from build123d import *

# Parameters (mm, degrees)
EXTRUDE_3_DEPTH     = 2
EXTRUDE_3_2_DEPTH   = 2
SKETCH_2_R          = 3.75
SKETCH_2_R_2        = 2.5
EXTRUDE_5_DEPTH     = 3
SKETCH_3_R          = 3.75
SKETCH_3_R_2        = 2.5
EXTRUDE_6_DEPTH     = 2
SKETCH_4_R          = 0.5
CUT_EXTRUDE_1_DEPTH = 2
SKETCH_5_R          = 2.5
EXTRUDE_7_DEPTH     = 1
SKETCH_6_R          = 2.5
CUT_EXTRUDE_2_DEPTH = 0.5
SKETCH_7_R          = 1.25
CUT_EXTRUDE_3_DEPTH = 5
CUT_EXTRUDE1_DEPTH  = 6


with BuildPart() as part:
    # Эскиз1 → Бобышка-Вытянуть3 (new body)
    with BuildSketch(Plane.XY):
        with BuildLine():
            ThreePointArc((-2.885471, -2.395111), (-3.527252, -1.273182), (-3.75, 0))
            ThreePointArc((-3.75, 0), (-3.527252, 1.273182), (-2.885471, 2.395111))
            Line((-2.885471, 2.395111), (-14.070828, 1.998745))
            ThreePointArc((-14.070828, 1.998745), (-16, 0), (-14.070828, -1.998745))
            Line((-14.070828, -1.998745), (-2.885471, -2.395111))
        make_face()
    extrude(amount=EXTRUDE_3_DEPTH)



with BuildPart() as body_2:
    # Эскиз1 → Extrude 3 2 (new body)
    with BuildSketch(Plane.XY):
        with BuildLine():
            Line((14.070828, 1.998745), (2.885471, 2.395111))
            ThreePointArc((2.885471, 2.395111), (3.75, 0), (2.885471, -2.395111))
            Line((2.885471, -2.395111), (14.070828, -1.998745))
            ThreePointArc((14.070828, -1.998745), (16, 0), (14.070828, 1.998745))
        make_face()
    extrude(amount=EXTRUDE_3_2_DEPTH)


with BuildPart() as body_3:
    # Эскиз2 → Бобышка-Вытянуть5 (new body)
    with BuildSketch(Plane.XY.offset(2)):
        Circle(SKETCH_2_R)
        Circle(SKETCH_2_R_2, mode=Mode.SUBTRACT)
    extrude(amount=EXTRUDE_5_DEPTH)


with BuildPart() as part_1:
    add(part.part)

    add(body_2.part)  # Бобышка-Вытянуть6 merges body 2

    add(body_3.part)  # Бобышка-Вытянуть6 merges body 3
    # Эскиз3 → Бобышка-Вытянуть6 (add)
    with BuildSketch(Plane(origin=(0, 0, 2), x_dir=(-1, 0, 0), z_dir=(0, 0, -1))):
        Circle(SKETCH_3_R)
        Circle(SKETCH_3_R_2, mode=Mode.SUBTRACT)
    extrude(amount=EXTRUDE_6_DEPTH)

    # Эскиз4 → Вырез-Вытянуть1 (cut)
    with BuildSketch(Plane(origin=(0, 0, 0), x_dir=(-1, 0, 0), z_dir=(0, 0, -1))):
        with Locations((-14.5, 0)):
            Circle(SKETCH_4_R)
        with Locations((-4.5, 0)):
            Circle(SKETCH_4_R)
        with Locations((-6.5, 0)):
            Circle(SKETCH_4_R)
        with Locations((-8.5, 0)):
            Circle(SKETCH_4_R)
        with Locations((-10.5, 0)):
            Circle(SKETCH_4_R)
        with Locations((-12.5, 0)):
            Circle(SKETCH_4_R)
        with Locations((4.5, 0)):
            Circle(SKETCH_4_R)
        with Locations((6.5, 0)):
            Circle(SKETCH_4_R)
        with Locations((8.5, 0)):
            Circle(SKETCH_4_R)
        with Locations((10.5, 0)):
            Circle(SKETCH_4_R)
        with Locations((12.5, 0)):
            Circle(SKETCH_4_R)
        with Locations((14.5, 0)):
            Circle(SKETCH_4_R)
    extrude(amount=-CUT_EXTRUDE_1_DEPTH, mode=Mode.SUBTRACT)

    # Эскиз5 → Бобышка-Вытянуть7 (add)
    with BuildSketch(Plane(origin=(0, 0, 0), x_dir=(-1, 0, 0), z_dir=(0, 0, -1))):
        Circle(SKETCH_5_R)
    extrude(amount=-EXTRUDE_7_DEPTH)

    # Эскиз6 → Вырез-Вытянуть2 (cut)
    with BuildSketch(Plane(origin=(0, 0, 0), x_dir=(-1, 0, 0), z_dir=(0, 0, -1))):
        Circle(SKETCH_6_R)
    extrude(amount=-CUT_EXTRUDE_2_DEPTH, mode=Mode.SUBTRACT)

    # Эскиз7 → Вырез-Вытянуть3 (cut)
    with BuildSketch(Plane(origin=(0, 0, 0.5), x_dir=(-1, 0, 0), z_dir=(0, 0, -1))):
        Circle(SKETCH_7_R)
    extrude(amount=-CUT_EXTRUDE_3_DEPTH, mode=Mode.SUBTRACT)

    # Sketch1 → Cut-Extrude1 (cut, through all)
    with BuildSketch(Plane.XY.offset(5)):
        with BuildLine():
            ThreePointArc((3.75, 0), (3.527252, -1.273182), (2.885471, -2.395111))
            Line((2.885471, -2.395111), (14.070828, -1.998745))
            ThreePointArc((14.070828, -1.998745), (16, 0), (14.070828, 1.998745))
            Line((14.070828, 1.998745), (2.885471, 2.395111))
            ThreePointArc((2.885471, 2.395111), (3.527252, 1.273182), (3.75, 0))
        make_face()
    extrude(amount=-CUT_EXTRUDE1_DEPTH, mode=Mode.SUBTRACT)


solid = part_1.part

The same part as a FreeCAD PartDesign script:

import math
import FreeCAD as App
import Part
import Sketcher
from FreeCAD import Vector

doc = App.newDocument("Part")
params = doc.addObject("Spreadsheet::Sheet", "Params")
for row, (alias, value) in enumerate([
    ("sketch1_radius", "2 mm"),
    ("sketch1_radius2", "3.750001 mm"),
    ("pad1_length", "2 mm"),
    ("sketch2_radius", "2 mm"),
    ("sketch2_radius2", "3.75 mm"),
    ("pad2_length", "2 mm"),
    ("sketch3_diameter", "5 mm"),
    ("sketch3_diameter2", "7.5 mm"),
    ("pad3_length", "3 mm"),
    ("sketch4_diameter", "5 mm"),
    ("sketch4_diameter2", "7.5 mm"),
    ("pad4_length", "2 mm"),
    ("sketch5_diameter", "1 mm"),
    ("pocket1_length", "2 mm"),
    ("sketch6_diameter", "5 mm"),
    ("pad5_length", "1 mm"),
    ("sketch7_diameter", "5 mm"),
    ("pocket2_length", "0.5 mm"),
    ("sketch8_diameter", "2.5 mm"),
    ("pocket3_length", "5 mm"),
    ("sketch9_radius", "2 mm"),
    ("sketch9_radius2", "3.750001 mm"),
], start=1):
    params.set(f"A{row}", alias)
    params.set(f"B{row}", "=" + value)
    params.setAlias(f"B{row}", alias)

body = doc.addObject("PartDesign::Body", "Body")

sketch1 = body.newObject("Sketcher::SketchObject", "Sketch")
sketch1.AttachmentSupport = (doc.getObject("XY_Plane"), [""])
sketch1.MapMode = "FlatFace"
sketch1.addGeometry(Part.ArcOfCircle(Part.Circle(Vector(0, 0, 0), Vector(0, 0, 1), 3.8), math.radians(-180), math.radians(-140)), False)
sketch1.addGeometry(Part.ArcOfCircle(Part.Circle(Vector(0, 0, 0), Vector(0, 0, 1), 3.8), math.radians(140), math.radians(180)), False)
sketch1.addGeometry(Part.LineSegment(Vector(-2.9, 2.4, 0), Vector(-14.1, 2, 0)), False)
sketch1.addGeometry(Part.ArcOfCircle(Part.Circle(Vector(-14, 0, 0), Vector(0, 0, 1), 2), math.radians(92), math.radians(268)), False)
sketch1.addGeometry(Part.LineSegment(Vector(-14.1, -2, 0), Vector(-2.9, -2.4, 0)), False)
sketch1.addConstraint(Sketcher.Constraint("Tangent", 0, 1, 1, 2))
sketch1.addConstraint(Sketcher.Constraint("Coincident", 1, 1, 2, 1))
sketch1.addConstraint(Sketcher.Constraint("Tangent", 2, 2, 3, 1))
sketch1.addConstraint(Sketcher.Constraint("Tangent", 3, 2, 4, 1))
sketch1.addConstraint(Sketcher.Constraint("Coincident", 4, 2, 0, 2))
sketch1.addConstraint(Sketcher.Constraint("Coincident", 0, 3, -1, 1))
sketch1.addConstraint(Sketcher.Constraint("Equal", 0, 1))
sketch1.addConstraint(Sketcher.Constraint("Symmetric", 2, 2, 3, 2, -1))
sketch1.addConstraint(Sketcher.Constraint("PointOnObject", 0, 1, -1))
sketch1.addConstraint(Sketcher.Constraint("Radius", 3, 2.0))
sketch1.addConstraint(Sketcher.Constraint("Radius", 0, 3.750001))
sketch1.addConstraint(Sketcher.Constraint("DistanceX", 3, 3, -1, 1, 14.0))
sketch1.addConstraint(Sketcher.Constraint("DistanceX", 1, 1, -1, 1, 2.885471))
sketch1.setExpression("Constraints[9]", "Params.sketch1_radius")
sketch1.setExpression("Constraints[10]", "Params.sketch1_radius2")
pad1 = body.newObject("PartDesign::Pad", "Pad")
pad1.Profile = sketch1
pad1.setExpression("Length", "Params.pad1_length")
body2 = doc.addObject("PartDesign::Body", "Body001")

sketch2 = body2.newObject("Sketcher::SketchObject", "Sketch001")
sketch2.AttachmentSupport = (doc.getObject("XY_Plane001"), [""])
sketch2.MapMode = "FlatFace"
sketch2.addGeometry(Part.LineSegment(Vector(14.1, 2, 0), Vector(2.9, 2.4, 0)), False)
sketch2.addGeometry(Part.ArcOfCircle(Part.Circle(Vector(0, 0, 0), Vector(0, 0, 1), 3.7), math.radians(-40), math.radians(40)), False)
sketch2.addGeometry(Part.LineSegment(Vector(2.9, -2.4, 0), Vector(14.1, -2, 0)), False)
sketch2.addGeometry(Part.ArcOfCircle(Part.Circle(Vector(14, 0, 0), Vector(0, 0, 1), 2), math.radians(-88), math.radians(88)), False)
sketch2.addConstraint(Sketcher.Constraint("Coincident", 0, 2, 1, 2))
sketch2.addConstraint(Sketcher.Constraint("Coincident", 1, 1, 2, 1))
sketch2.addConstraint(Sketcher.Constraint("Tangent", 2, 2, 3, 1))
sketch2.addConstraint(Sketcher.Constraint("Tangent", 3, 2, 0, 1))
sketch2.addConstraint(Sketcher.Constraint("Coincident", 1, 3, -1, 1))
sketch2.addConstraint(Sketcher.Constraint("Symmetric", 2, 2, 3, 2, -1))
sketch2.addConstraint(Sketcher.Constraint("Radius", 3, 2.0))
sketch2.addConstraint(Sketcher.Constraint("Radius", 1, 3.75))
sketch2.addConstraint(Sketcher.Constraint("DistanceX", -1, 1, 3, 3, 14.0))
sketch2.addConstraint(Sketcher.Constraint("DistanceX", -1, 1, 0, 2, 2.885471))
sketch2.setExpression("Constraints[6]", "Params.sketch2_radius")
sketch2.setExpression("Constraints[7]", "Params.sketch2_radius2")
pad2 = body2.newObject("PartDesign::Pad", "Pad001")
pad2.Profile = sketch2
pad2.setExpression("Length", "Params.pad2_length")
body3 = doc.addObject("PartDesign::Body", "Body002")

sketch3 = body3.newObject("Sketcher::SketchObject", "Sketch002")
sketch3.AttachmentSupport = (doc.getObject("XY_Plane002"), [""])
sketch3.MapMode = "FlatFace"
sketch3.AttachmentOffset = App.Placement(Vector(0, 0, 2), App.Rotation())
sketch3.addGeometry(Part.Circle(Vector(0, 0, 0), Vector(0, 0, 1), 3.8), False)
sketch3.addGeometry(Part.Circle(Vector(0, 0, 0), Vector(0, 0, 1), 2.5), False)
sketch3.addConstraint(Sketcher.Constraint("Coincident", 0, 3, -1, 1))
sketch3.addConstraint(Sketcher.Constraint("Coincident", 1, 3, -1, 1))
sketch3.addConstraint(Sketcher.Constraint("Diameter", 1, 5.0))
sketch3.addConstraint(Sketcher.Constraint("Diameter", 0, 7.5))
sketch3.setExpression("Constraints[2]", "Params.sketch3_diameter")
sketch3.setExpression("Constraints[3]", "Params.sketch3_diameter2")
pad3 = body3.newObject("PartDesign::Pad", "Pad002")
pad3.Profile = sketch3
pad3.setExpression("Length", "Params.pad3_length")
body.AllowCompound = True
doc.recompute()

boolean = body.newObject("PartDesign::Boolean", "Boolean")
boolean.Type = "Fuse"
boolean.addObjects([body2])
doc.recompute()

boolean2 = body.newObject("PartDesign::Boolean", "Boolean001")
boolean2.Type = "Fuse"
boolean2.addObjects([body3])

sketch4 = body.newObject("Sketcher::SketchObject", "Sketch003")
sketch4.AttachmentSupport = (doc.getObject("XY_Plane"), [""])
sketch4.MapMode = "FlatFace"
sketch4.AttachmentOffset = App.Placement(Vector(0, 0, 2), App.Rotation())
sketch4.addGeometry(Part.Circle(Vector(0, 0, 0), Vector(0, 0, 1), 3.8), False)
sketch4.addGeometry(Part.Circle(Vector(0, 0, 0), Vector(0, 0, 1), 2.5), False)
sketch4.addConstraint(Sketcher.Constraint("Coincident", 0, 3, -1, 1))
sketch4.addConstraint(Sketcher.Constraint("Coincident", 1, 3, -1, 1))
sketch4.addConstraint(Sketcher.Constraint("Diameter", 1, 5.0))
sketch4.addConstraint(Sketcher.Constraint("Diameter", 0, 7.5))
sketch4.setExpression("Constraints[2]", "Params.sketch4_diameter")
sketch4.setExpression("Constraints[3]", "Params.sketch4_diameter2")
pad4 = body.newObject("PartDesign::Pad", "Pad003")
pad4.Profile = sketch4
pad4.setExpression("Length", "Params.pad4_length")
pad4.Reversed = True

sketch5 = body.newObject("Sketcher::SketchObject", "Sketch004")
sketch5.AttachmentSupport = (doc.getObject("XY_Plane"), [""])
sketch5.MapMode = "FlatFace"
sketch5.addGeometry(Part.Circle(Vector(14.5, 0, 0), Vector(0, 0, 1), 0.5), False)
sketch5.addGeometry(Part.Circle(Vector(4.5, 0, 0), Vector(0, 0, 1), 0.5), False)
sketch5.addGeometry(Part.Circle(Vector(6.5, 0, 0), Vector(0, 0, 1), 0.5), False)
sketch5.addGeometry(Part.Circle(Vector(8.5, 0, 0), Vector(0, 0, 1), 0.5), False)
sketch5.addGeometry(Part.Circle(Vector(10.5, 0, 0), Vector(0, 0, 1), 0.5), False)
sketch5.addGeometry(Part.Circle(Vector(12.5, 0, 0), Vector(0, 0, 1), 0.5), False)
sketch5.addGeometry(Part.Circle(Vector(-4.5, 0, 0), Vector(0, 0, 1), 0.5), False)
sketch5.addGeometry(Part.Circle(Vector(-6.5, 0, 0), Vector(0, 0, 1), 0.5), False)
sketch5.addGeometry(Part.Circle(Vector(-8.5, 0, 0), Vector(0, 0, 1), 0.5), False)
sketch5.addGeometry(Part.Circle(Vector(-10.5, 0, 0), Vector(0, 0, 1), 0.5), False)
sketch5.addGeometry(Part.Circle(Vector(-12.5, 0, 0), Vector(0, 0, 1), 0.5), False)
sketch5.addGeometry(Part.Circle(Vector(-14.5, 0, 0), Vector(0, 0, 1), 0.5), False)
sketch5.addConstraint(Sketcher.Constraint("Equal", 0, 1))
sketch5.addConstraint(Sketcher.Constraint("Equal", 1, 2))
sketch5.addConstraint(Sketcher.Constraint("Equal", 2, 3))
sketch5.addConstraint(Sketcher.Constraint("Equal", 3, 4))
sketch5.addConstraint(Sketcher.Constraint("Equal", 4, 5))
sketch5.addConstraint(Sketcher.Constraint("Equal", 5, 6))
sketch5.addConstraint(Sketcher.Constraint("Equal", 6, 7))
sketch5.addConstraint(Sketcher.Constraint("Equal", 7, 8))
sketch5.addConstraint(Sketcher.Constraint("Equal", 8, 9))
sketch5.addConstraint(Sketcher.Constraint("Equal", 9, 10))
sketch5.addConstraint(Sketcher.Constraint("Equal", 10, 11))
sketch5.addConstraint(Sketcher.Constraint("Symmetric", 1, 3, 6, 3, -1, 1))
sketch5.addConstraint(Sketcher.Constraint("Symmetric", 2, 3, 7, 3, -1, 1))
sketch5.addConstraint(Sketcher.Constraint("Symmetric", 3, 3, 8, 3, -1, 1))
sketch5.addConstraint(Sketcher.Constraint("Symmetric", 4, 3, 9, 3, -1, 1))
sketch5.addConstraint(Sketcher.Constraint("Symmetric", 5, 3, 10, 3, -1, 1))
sketch5.addConstraint(Sketcher.Constraint("Symmetric", 0, 3, 11, 3, -1, 1))
sketch5.addConstraint(Sketcher.Constraint("PointOnObject", 0, 3, -1))
sketch5.addConstraint(Sketcher.Constraint("PointOnObject", 1, 3, -1))
sketch5.addConstraint(Sketcher.Constraint("PointOnObject", 2, 3, -1))
sketch5.addConstraint(Sketcher.Constraint("PointOnObject", 3, 3, -1))
sketch5.addConstraint(Sketcher.Constraint("PointOnObject", 4, 3, -1))
sketch5.addConstraint(Sketcher.Constraint("PointOnObject", 5, 3, -1))
sketch5.addConstraint(Sketcher.Constraint("Diameter", 0, 1.0))
sketch5.addConstraint(Sketcher.Constraint("DistanceX", 1, 3, 0, 3, 10.0))
sketch5.addConstraint(Sketcher.Constraint("DistanceX", 1, 3, 2, 3, 2.0))
sketch5.addConstraint(Sketcher.Constraint("DistanceX", 2, 3, 3, 3, 2.0))
sketch5.addConstraint(Sketcher.Constraint("DistanceX", 3, 3, 4, 3, 2.0))
sketch5.addConstraint(Sketcher.Constraint("DistanceX", 5, 3, 0, 3, 2.0))
sketch5.addConstraint(Sketcher.Constraint("DistanceX", 6, 3, 1, 3, 9.0))
sketch5.setExpression("Constraints[23]", "Params.sketch5_diameter")
pocket1 = body.newObject("PartDesign::Pocket", "Pocket")
pocket1.Profile = sketch5
pocket1.setExpression("Length", "Params.pocket1_length")
pocket1.Reversed = True

sketch6 = body.newObject("Sketcher::SketchObject", "Sketch005")
sketch6.AttachmentSupport = (doc.getObject("XY_Plane"), [""])
sketch6.MapMode = "FlatFace"
sketch6.addGeometry(Part.Circle(Vector(0, 0, 0), Vector(0, 0, 1), 2.5), False)
sketch6.addConstraint(Sketcher.Constraint("Coincident", 0, 3, -1, 1))
sketch6.addConstraint(Sketcher.Constraint("Diameter", 0, 5.0))
sketch6.setExpression("Constraints[1]", "Params.sketch6_diameter")
pad5 = body.newObject("PartDesign::Pad", "Pad004")
pad5.Profile = sketch6
pad5.setExpression("Length", "Params.pad5_length")

sketch7 = body.newObject("Sketcher::SketchObject", "Sketch006")
sketch7.AttachmentSupport = (doc.getObject("XY_Plane"), [""])
sketch7.MapMode = "FlatFace"
sketch7.addGeometry(Part.Circle(Vector(0, 0, 0), Vector(0, 0, 1), 2.5), False)
sketch7.addConstraint(Sketcher.Constraint("Coincident", 0, 3, -1, 1))
sketch7.addConstraint(Sketcher.Constraint("Diameter", 0, 5.0))
sketch7.setExpression("Constraints[1]", "Params.sketch7_diameter")
pocket2 = body.newObject("PartDesign::Pocket", "Pocket001")
pocket2.Profile = sketch7
pocket2.setExpression("Length", "Params.pocket2_length")
pocket2.Reversed = True

sketch8 = body.newObject("Sketcher::SketchObject", "Sketch007")
sketch8.AttachmentSupport = (doc.getObject("XY_Plane"), [""])
sketch8.MapMode = "FlatFace"
sketch8.AttachmentOffset = App.Placement(Vector(0, 0, 0.5), App.Rotation())
sketch8.addGeometry(Part.Circle(Vector(0, 0, 0), Vector(0, 0, 1), 1.2), False)
sketch8.addConstraint(Sketcher.Constraint("Coincident", 0, 3, -1, 1))
sketch8.addConstraint(Sketcher.Constraint("Diameter", 0, 2.5))
sketch8.setExpression("Constraints[1]", "Params.sketch8_diameter")
pocket3 = body.newObject("PartDesign::Pocket", "Pocket002")
pocket3.Profile = sketch8
pocket3.setExpression("Length", "Params.pocket3_length")
pocket3.Reversed = True

sketch9 = body.newObject("Sketcher::SketchObject", "Sketch008")
sketch9.AttachmentSupport = (doc.getObject("XY_Plane"), [""])
sketch9.MapMode = "FlatFace"
sketch9.AttachmentOffset = App.Placement(Vector(0, 0, 5), App.Rotation())
sketch9.addGeometry(Part.ArcOfCircle(Part.Circle(Vector(0, 0, 0), Vector(0, 0, 1), 3.8), math.radians(-40), math.radians(0)), False)
sketch9.addGeometry(Part.LineSegment(Vector(2.9, -2.4, 0), Vector(14.1, -2, 0)), False)
sketch9.addGeometry(Part.ArcOfCircle(Part.Circle(Vector(14, 0, 0), Vector(0, 0, 1), 2), math.radians(-88), math.radians(88)), False)
sketch9.addGeometry(Part.LineSegment(Vector(14.1, 2, 0), Vector(2.9, 2.4, 0)), False)
sketch9.addGeometry(Part.ArcOfCircle(Part.Circle(Vector(0, 0, 0), Vector(0, 0, 1), 3.8), math.radians(0), math.radians(40)), False)
sketch9.addConstraint(Sketcher.Constraint("Coincident", 0, 1, 1, 1))
sketch9.addConstraint(Sketcher.Constraint("Tangent", 1, 2, 2, 1))
sketch9.addConstraint(Sketcher.Constraint("Tangent", 2, 2, 3, 1))
sketch9.addConstraint(Sketcher.Constraint("Coincident", 3, 2, 4, 2))
sketch9.addConstraint(Sketcher.Constraint("Tangent", 4, 1, 0, 2))
sketch9.addConstraint(Sketcher.Constraint("Coincident", 0, 3, -1, 1))
sketch9.addConstraint(Sketcher.Constraint("Equal", 0, 4))
sketch9.addConstraint(Sketcher.Constraint("Symmetric", 1, 2, 2, 2, -1))
sketch9.addConstraint(Sketcher.Constraint("PointOnObject", 4, 1, -1))
sketch9.addConstraint(Sketcher.Constraint("Radius", 2, 2.0))
sketch9.addConstraint(Sketcher.Constraint("Radius", 0, 3.750001))
sketch9.addConstraint(Sketcher.Constraint("DistanceX", -1, 1, 2, 3, 14.0))
sketch9.addConstraint(Sketcher.Constraint("DistanceX", -1, 1, 0, 1, 2.885471))
sketch9.setExpression("Constraints[9]", "Params.sketch9_radius")
sketch9.setExpression("Constraints[10]", "Params.sketch9_radius2")
pocket4 = body.newObject("PartDesign::Pocket", "Pocket003")
pocket4.Profile = sketch9
pocket4.Type = "ThroughAll"

doc.recompute()
